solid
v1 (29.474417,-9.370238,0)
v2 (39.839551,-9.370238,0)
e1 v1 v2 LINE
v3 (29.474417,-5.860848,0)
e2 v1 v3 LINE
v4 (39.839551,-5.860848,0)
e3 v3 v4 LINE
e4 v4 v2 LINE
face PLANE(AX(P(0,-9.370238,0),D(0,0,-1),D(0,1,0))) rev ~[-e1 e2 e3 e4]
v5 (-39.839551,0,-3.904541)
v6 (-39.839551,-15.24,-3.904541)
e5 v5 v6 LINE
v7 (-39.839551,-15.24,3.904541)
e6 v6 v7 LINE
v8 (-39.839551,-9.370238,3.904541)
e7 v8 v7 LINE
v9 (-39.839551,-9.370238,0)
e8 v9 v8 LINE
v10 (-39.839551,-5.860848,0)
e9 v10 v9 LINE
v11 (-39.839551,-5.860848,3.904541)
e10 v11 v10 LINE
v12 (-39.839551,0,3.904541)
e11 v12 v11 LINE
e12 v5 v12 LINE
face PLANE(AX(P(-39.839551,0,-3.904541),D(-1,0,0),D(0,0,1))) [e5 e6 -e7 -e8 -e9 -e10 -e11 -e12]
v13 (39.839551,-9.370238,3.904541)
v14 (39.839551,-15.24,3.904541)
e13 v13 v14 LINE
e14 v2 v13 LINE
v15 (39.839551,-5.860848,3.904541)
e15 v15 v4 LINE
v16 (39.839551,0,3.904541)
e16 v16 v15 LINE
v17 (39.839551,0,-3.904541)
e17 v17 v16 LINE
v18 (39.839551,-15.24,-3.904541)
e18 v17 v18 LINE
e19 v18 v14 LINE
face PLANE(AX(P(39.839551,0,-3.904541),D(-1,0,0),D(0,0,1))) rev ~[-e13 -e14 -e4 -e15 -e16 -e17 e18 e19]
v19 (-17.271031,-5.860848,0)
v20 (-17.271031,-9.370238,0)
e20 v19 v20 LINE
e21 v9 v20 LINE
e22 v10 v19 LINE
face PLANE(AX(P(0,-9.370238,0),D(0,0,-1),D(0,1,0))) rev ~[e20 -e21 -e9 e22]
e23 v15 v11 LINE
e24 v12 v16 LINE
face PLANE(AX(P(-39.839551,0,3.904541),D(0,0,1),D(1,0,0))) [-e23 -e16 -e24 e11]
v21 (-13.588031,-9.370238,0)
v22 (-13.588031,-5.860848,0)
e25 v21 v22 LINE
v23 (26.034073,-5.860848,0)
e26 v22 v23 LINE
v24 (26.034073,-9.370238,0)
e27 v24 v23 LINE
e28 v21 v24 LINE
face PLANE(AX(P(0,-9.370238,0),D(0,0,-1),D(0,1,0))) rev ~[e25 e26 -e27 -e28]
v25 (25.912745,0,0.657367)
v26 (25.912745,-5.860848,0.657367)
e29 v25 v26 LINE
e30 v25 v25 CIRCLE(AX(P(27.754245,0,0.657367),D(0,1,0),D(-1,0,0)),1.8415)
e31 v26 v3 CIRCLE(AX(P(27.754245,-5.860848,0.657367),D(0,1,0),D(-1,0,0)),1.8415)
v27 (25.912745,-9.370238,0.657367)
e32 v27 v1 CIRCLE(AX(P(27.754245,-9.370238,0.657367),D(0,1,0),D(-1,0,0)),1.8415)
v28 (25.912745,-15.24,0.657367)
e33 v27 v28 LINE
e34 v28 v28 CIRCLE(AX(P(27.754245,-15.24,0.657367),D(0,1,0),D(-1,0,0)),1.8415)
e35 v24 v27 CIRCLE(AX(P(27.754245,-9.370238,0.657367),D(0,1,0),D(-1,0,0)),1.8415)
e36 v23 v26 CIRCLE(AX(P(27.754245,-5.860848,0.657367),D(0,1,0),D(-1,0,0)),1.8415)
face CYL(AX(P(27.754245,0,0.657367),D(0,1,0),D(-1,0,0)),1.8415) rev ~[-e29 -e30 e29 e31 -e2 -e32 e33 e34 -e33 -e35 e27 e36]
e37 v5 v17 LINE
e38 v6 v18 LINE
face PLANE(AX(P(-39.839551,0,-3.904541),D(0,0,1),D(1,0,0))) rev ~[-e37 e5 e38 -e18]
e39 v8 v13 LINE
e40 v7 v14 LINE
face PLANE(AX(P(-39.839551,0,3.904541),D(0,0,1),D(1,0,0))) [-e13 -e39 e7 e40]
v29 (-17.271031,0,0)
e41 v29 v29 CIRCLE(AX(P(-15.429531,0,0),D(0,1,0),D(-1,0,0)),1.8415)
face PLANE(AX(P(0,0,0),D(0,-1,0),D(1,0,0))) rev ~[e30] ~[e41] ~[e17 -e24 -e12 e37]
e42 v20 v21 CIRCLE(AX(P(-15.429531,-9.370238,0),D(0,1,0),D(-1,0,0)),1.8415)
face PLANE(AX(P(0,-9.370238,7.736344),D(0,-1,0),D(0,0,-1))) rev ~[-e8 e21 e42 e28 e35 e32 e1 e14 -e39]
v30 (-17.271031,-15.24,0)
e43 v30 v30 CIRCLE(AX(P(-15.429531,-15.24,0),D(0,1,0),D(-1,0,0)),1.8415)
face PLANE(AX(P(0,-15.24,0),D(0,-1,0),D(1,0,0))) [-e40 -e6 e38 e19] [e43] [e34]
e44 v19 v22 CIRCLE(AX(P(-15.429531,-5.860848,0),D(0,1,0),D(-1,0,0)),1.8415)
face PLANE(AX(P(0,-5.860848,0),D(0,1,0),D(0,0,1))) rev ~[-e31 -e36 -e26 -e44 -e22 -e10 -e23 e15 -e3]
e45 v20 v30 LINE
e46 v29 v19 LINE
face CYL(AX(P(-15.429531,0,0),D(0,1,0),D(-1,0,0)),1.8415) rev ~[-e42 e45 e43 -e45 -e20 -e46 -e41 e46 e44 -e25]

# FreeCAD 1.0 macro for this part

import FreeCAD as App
import Part
import Sketcher
from FreeCAD import Vector
Q = App.Units.Quantity


def add_polygon(sketch, points):
    """Adds a closed chain of lines whose ends are joined by coincident constraints."""
    first, n = sketch.GeometryCount, len(points)
    for a, b in zip(points, points[1:] + points[:1]):
        sketch.addGeometry(Part.LineSegment(App.Vector(*a, 0), App.Vector(*b, 0)), False)
    for i in range(n):
        sketch.addConstraint(Sketcher.Constraint("Coincident", first + i, 2, first + (i + 1) % n, 1))

doc = App.newDocument("Part")
body = doc.addObject("PartDesign::Body", "Body")

sketch1 = body.newObject("Sketcher::SketchObject", "Sketch")
sketch1.AttachmentSupport = (doc.getObject("XZ_Plane"), [""])
sketch1.MapMode = "FlatFace"
add_polygon(sketch1, [(-39.839551, 3.904541), (-39.839551, -3.904541), (39.839551, -3.904541), (39.839551, 3.904541)])
sketch1.addConstraint([
    Sketcher.Constraint("Vertical", 0),
    Sketcher.Constraint("Horizontal", 1),
    Sketcher.Constraint("Vertical", 2),
    Sketcher.Constraint("Horizontal", 3),
    Sketcher.Constraint("Symmetric", 0, 2, 2, 2, -1, 1),
    Sketcher.Constraint("DistanceX", 1, 1, 1, 2, 79.679102),
    Sketcher.Constraint("DistanceY", 0, 2, 0, 1, 7.809082),
])
pad1 = body.newObject("PartDesign::Pad", "Pad")
pad1.Profile = sketch1
pad1.Length = Q("0.6 in")

sketch2 = body.newObject("Sketcher::SketchObject", "Sketch001")
sketch2.AttachmentSupport = (doc.getObject("YZ_Plane"), [""])
sketch2.MapMode = "FlatFace"
add_polygon(sketch2, [(-9.370238, 7.736344), (-9.370238, 0), (-5.860848, 0), (-5.860848, 7.736344)])
sketch2.addConstraint([
    Sketcher.Constraint("Vertical", 0),
    Sketcher.Constraint("Horizontal", 1),
    Sketcher.Constraint("Vertical", 2),
    Sketcher.Constraint("Horizontal", 3),
    Sketcher.Constraint("PointOnObject", 0, 2, -1),
    Sketcher.Constraint("DistanceX", 1, 1, 1, 2, 3.50939),
    Sketcher.Constraint("DistanceY", 0, 2, 0, 1, 7.736344),
    Sketcher.Constraint("DistanceX", 0, 2, -1, 1, 9.370238),
])
pocket1 = body.newObject("PartDesign::Pocket", "Pocket")
pocket1.Profile = sketch2
pocket1.Length = Q("5 in")
pocket1.Midplane = True

sketch3 = body.newObject("Sketcher::SketchObject", "Sketch002")
sketch3.AttachmentSupport = (doc.getObject("XZ_Plane"), [""])
sketch3.MapMode = "FlatFace"
sketch3.addGeometry([
    Part.Circle(Vector(27.754245, 0.657367, 0), Vector(0, 0, 1), 1.8415),
    Part.Circle(Vector(-15.429531, 0, 0), Vector(0, 0, 1), 1.8415),
], False)
sketch3.addConstraint([
    Sketcher.Constraint("Equal", 0, 1),
    Sketcher.Constraint("PointOnObject", 1, 3, -1),
    Sketcher.Constraint("Diameter", 0, Q("0.145 in")),
    Sketcher.Constraint("DistanceX", 1, 3, -1, 1, 15.429531),
    Sketcher.Constraint("DistanceX", -1, 1, 0, 3, 27.754245),
    Sketcher.Constraint("DistanceY", -1, 1, 0, 3, 0.657367),
])
pocket2 = body.newObject("PartDesign::Pocket", "Pocket001")
pocket2.Profile = sketch3
pocket2.Length = Q("1.289 in")
pocket2.Reversed = True

doc.recompute()
